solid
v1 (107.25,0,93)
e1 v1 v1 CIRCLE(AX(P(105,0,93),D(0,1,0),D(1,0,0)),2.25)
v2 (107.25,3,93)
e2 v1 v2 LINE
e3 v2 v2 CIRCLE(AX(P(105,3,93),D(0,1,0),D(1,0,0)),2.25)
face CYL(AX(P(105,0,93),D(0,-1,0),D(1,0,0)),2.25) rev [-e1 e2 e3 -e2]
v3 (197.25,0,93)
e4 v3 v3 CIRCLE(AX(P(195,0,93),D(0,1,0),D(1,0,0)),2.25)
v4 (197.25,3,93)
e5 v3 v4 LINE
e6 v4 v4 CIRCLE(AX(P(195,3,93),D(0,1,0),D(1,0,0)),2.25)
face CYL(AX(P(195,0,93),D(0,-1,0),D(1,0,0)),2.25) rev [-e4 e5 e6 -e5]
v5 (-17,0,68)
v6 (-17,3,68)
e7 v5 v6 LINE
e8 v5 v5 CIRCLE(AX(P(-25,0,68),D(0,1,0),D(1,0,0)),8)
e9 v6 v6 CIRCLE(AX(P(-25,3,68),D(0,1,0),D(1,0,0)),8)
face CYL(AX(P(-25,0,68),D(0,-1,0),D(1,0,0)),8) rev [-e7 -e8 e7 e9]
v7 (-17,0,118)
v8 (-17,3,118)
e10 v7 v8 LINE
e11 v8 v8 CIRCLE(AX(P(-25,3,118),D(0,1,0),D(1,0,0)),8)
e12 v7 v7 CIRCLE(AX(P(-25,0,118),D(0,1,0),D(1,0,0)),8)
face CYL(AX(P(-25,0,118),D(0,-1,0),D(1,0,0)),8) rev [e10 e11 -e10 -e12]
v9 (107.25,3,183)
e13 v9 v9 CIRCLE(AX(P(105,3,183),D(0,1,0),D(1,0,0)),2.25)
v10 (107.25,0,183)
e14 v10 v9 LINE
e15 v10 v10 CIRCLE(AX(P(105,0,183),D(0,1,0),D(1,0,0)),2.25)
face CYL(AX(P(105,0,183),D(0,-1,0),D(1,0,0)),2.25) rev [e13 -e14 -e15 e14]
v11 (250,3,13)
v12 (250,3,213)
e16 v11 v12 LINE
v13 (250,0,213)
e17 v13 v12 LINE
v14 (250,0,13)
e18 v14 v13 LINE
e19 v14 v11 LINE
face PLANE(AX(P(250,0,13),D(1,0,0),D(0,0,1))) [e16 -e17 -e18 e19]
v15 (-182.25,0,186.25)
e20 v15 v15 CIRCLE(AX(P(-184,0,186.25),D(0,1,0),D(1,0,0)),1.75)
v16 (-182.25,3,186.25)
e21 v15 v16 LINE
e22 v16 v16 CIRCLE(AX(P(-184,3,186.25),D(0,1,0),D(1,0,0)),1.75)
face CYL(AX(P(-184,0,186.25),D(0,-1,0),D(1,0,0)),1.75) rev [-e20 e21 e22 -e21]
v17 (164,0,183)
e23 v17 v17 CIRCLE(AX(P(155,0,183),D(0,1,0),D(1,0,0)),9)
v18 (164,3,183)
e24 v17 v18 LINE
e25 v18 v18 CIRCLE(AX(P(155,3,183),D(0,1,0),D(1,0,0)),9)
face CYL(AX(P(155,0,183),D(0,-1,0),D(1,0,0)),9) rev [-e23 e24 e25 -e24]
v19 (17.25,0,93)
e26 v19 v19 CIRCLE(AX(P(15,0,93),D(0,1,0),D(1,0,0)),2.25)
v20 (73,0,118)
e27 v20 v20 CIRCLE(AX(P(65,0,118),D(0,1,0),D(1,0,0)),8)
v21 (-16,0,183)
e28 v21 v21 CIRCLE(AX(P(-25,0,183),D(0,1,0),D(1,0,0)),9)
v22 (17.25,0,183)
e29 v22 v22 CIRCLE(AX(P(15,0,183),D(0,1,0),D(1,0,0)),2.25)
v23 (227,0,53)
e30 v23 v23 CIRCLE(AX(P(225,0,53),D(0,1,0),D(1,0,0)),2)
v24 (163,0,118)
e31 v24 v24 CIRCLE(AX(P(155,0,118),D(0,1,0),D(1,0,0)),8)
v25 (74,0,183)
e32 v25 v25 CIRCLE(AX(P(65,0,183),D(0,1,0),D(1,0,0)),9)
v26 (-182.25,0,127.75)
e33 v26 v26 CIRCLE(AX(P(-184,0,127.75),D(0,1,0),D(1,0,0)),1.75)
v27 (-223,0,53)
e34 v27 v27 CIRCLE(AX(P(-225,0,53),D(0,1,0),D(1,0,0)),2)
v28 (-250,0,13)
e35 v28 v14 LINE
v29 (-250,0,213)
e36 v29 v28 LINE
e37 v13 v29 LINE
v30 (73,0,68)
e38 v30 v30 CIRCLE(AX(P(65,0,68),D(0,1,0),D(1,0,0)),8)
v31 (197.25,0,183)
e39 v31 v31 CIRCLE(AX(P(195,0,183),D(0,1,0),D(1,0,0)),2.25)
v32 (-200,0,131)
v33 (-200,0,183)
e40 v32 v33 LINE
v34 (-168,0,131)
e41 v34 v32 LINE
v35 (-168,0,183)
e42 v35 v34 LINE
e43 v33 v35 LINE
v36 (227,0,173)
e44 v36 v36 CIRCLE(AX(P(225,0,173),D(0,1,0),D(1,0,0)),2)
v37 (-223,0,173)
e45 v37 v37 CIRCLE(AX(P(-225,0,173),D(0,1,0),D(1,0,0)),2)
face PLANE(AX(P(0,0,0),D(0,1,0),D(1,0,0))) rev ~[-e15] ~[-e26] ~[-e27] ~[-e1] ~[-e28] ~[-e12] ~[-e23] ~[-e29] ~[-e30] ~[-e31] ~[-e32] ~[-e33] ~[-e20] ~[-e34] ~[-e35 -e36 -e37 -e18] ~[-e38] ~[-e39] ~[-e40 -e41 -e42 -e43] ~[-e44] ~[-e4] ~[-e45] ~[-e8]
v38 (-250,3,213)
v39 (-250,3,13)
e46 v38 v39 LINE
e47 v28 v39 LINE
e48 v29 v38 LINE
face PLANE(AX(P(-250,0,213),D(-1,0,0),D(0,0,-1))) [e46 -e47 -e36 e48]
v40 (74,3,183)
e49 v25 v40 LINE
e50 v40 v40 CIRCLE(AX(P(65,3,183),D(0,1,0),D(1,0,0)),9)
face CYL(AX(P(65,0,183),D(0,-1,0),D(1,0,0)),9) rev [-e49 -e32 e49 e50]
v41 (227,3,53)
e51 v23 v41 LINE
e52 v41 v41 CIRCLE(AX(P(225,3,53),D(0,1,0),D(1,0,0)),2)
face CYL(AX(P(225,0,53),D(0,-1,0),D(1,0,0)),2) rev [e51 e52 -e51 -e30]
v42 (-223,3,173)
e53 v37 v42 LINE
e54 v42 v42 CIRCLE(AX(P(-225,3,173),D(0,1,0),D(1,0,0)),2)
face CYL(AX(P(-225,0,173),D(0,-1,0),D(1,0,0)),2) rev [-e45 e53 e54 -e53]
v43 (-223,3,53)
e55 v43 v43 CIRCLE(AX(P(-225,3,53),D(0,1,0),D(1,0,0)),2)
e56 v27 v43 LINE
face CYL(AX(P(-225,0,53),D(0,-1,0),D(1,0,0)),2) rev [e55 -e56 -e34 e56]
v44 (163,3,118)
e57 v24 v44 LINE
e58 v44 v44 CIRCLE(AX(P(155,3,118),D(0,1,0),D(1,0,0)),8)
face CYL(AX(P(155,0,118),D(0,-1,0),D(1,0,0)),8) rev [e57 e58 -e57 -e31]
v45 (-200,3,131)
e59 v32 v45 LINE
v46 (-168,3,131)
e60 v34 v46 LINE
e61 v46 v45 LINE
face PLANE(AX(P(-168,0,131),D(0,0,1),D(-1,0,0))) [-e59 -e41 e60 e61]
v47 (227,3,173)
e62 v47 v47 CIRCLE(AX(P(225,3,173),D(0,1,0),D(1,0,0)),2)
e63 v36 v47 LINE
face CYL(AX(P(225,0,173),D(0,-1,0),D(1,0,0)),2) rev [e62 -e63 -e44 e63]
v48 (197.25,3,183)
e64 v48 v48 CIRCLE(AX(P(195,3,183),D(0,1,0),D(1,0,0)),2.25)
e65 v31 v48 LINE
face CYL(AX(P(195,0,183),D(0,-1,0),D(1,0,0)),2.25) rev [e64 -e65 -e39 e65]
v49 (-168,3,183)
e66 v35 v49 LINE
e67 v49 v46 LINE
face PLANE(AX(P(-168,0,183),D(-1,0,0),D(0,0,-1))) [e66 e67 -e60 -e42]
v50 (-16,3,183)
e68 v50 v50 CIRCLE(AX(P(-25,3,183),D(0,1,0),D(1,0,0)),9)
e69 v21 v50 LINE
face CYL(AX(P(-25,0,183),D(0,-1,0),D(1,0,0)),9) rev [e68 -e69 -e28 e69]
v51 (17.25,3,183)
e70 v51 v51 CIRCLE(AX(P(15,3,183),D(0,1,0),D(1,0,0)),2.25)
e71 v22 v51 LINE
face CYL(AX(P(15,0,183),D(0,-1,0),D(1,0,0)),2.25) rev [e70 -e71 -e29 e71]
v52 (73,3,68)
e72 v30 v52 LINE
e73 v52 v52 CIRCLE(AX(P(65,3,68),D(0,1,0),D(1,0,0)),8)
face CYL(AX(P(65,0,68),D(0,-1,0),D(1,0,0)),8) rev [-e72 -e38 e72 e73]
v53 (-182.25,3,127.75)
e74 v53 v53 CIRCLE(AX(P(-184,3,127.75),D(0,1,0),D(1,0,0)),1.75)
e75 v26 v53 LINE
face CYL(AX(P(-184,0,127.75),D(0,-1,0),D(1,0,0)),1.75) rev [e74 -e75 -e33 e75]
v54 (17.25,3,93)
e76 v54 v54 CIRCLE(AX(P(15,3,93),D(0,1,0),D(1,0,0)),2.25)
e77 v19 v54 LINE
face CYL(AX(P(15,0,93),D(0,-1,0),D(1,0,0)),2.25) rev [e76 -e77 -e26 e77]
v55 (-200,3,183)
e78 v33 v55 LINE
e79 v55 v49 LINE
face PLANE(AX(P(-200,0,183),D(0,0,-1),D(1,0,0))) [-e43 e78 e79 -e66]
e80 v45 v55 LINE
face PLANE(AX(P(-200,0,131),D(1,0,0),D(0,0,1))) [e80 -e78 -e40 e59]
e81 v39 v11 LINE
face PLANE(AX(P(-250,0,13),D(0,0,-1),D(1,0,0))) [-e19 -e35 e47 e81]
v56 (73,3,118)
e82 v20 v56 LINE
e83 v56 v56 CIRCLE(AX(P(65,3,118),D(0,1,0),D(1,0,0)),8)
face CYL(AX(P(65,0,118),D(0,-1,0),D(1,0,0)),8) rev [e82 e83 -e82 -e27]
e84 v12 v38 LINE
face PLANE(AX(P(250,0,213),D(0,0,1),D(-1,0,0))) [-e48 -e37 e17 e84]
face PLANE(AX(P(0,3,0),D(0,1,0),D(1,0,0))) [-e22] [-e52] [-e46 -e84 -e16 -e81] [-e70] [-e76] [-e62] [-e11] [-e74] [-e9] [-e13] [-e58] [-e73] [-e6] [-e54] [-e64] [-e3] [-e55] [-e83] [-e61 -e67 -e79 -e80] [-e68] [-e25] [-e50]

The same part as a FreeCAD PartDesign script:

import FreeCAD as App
import Part
import Sketcher
Q = App.Units.Quantity

doc = App.newDocument("Part")
params = doc.addObject("Spreadsheet::Sheet", "Params")
for row, (alias, value) in enumerate([
    ("sketch1_diameter", "4 mm"),
    ("sketch1_diameter2", "18 mm"),
    ("sketch1_diameter3", "16 mm"),
    ("sketch1_diameter4", "3.5 mm"),
    ("sketch1_diameter5", "4.5 mm"),
    ("pad1_length", "3 mm"),
], start=1):
    params.set(f"A{row}", alias)
    params.set(f"B{row}", "=" + value)
    params.setAlias(f"B{row}", alias)

body = doc.addObject("PartDesign::Body", "Body")

sketch1 = body.newObject("Sketcher::SketchObject", "Sketch")
sketch1.AttachmentSupport = (doc.getObject("XZ_Plane"), [""])
sketch1.MapMode = "FlatFace"
sketch1.addGeometry([
    Part.LineSegment(App.Vector(250, 13, 0), App.Vector(-250, 13, 0)),
    Part.LineSegment(App.Vector(-250, 13, 0), App.Vector(-250, 213, 0)),
    Part.LineSegment(App.Vector(-250, 213, 0), App.Vector(250, 213, 0)),
    Part.LineSegment(App.Vector(250, 213, 0), App.Vector(250, 13, 0)),
    Part.Circle(App.Vector(-225, 173, 0), App.Vector(0, 0, 1), 2),
    Part.Circle(App.Vector(-184, 186.2, 0), App.Vector(0, 0, 1), 1.8),
    Part.Circle(App.Vector(-25, 183, 0), App.Vector(0, 0, 1), 9),
    Part.LineSegment(App.Vector(-168, 183, 0), App.Vector(-200, 183, 0)),
    Part.LineSegment(App.Vector(-200, 183, 0), App.Vector(-200, 131, 0)),
    Part.LineSegment(App.Vector(-200, 131, 0), App.Vector(-168, 131, 0)),
    Part.LineSegment(App.Vector(-168, 131, 0), App.Vector(-168, 183, 0)),
    Part.Circle(App.Vector(-184, 127.8, 0), App.Vector(0, 0, 1), 1.8),
    Part.Circle(App.Vector(-25, 118, 0), App.Vector(0, 0, 1), 8),
    Part.Circle(App.Vector(15, 183, 0), App.Vector(0, 0, 1), 2.2),
    Part.Circle(App.Vector(65, 183, 0), App.Vector(0, 0, 1), 9),
    Part.Circle(App.Vector(105, 183, 0), App.Vector(0, 0, 1), 2.2),
    Part.Circle(App.Vector(155, 183, 0), App.Vector(0, 0, 1), 9),
    Part.Circle(App.Vector(195, 183, 0), App.Vector(0, 0, 1), 2.2),
    Part.Circle(App.Vector(225, 173, 0), App.Vector(0, 0, 1), 2),
    Part.Circle(App.Vector(65, 118, 0), App.Vector(0, 0, 1), 8),
    Part.Circle(App.Vector(155, 118, 0), App.Vector(0, 0, 1), 8),
    Part.Circle(App.Vector(-25, 68, 0), App.Vector(0, 0, 1), 8),
    Part.Circle(App.Vector(-225, 53, 0), App.Vector(0, 0, 1), 2),
    Part.Circle(App.Vector(15, 93, 0), App.Vector(0, 0, 1), 2.2),
    Part.Circle(App.Vector(105, 93, 0), App.Vector(0, 0, 1), 2.2),
    Part.Circle(App.Vector(65, 68, 0), App.Vector(0, 0, 1), 8),
    Part.Circle(App.Vector(195, 93, 0), App.Vector(0, 0, 1), 2.2),
    Part.Circle(App.Vector(225, 53, 0), App.Vector(0, 0, 1), 2),
], False)
sketch1.addConstraint([
    Sketcher.Constraint("Coincident", 0, 2, 1, 1),
    Sketcher.Constraint("Coincident", 1, 2, 2, 1),
    Sketcher.Constraint("Coincident", 2, 2, 3, 1),
    Sketcher.Constraint("Coincident", 3, 2, 0, 1),
    Sketcher.Constraint("Coincident", 7, 2, 8, 1),
    Sketcher.Constraint("Coincident", 8, 2, 9, 1),
    Sketcher.Constraint("Coincident", 9, 2, 10, 1),
    Sketcher.Constraint("Coincident", 10, 2, 7, 1),
    Sketcher.Constraint("Horizontal", 0),
    Sketcher.Constraint("Vertical", 1),
    Sketcher.Constraint("Horizontal", 2),
    Sketcher.Constraint("Vertical", 3),
    Sketcher.Constraint("Horizontal", 7),
    Sketcher.Constraint("Vertical", 8),
    Sketcher.Constraint("Horizontal", 9),
    Sketcher.Constraint("Vertical", 10),
    Sketcher.Constraint("Equal", 5, 11),
    Sketcher.Constraint("Equal", 6, 14),
    Sketcher.Constraint("Equal", 13, 15),
    Sketcher.Constraint("Equal", 14, 16),
    Sketcher.Constraint("Equal", 15, 17),
    Sketcher.Constraint("Equal", 4, 18),
    Sketcher.Constraint("Equal", 12, 19),
    Sketcher.Constraint("Equal", 19, 20),
    Sketcher.Constraint("Equal", 20, 21),
    Sketcher.Constraint("Equal", 18, 22),
    Sketcher.Constraint("Equal", 17, 23),
    Sketcher.Constraint("Equal", 23, 24),
    Sketcher.Constraint("Equal", 21, 25),
    Sketcher.Constraint("Equal", 24, 26),
    Sketcher.Constraint("Equal", 22, 27),
    Sketcher.Constraint("Symmetric", 4, 3, 18, 3, -2),
    Sketcher.Constraint("Symmetric", 22, 3, 27, 3, -2),
    Sketcher.Constraint("Horizontal", 6, 3, 13, 3),
    Sketcher.Constraint("Horizontal", 13, 3, 14, 3),
    Sketcher.Constraint("Horizontal", 14, 3, 15, 3),
    Sketcher.Constraint("Horizontal", 15, 3, 16, 3),
    Sketcher.Constraint("Horizontal", 16, 3, 17, 3),
    Sketcher.Constraint("Horizontal", 12, 3, 19, 3),
    Sketcher.Constraint("Horizontal", 19, 3, 20, 3),
    Sketcher.Constraint("Horizontal", 23, 3, 24, 3),
    Sketcher.Constraint("Horizontal", 21, 3, 25, 3),
    Sketcher.Constraint("Horizontal", 24, 3, 26, 3),
    Sketcher.Constraint("Horizontal", 17, 3, 7, 2),
    Sketcher.Constraint("Vertical", 5, 3, 11, 3),
    Sketcher.Constraint("Vertical", 6, 3, 12, 3),
    Sketcher.Constraint("Vertical", 14, 3, 19, 3),
    Sketcher.Constraint("Vertical", 16, 3, 20, 3),
    Sketcher.Constraint("Vertical", 12, 3, 21, 3),
    Sketcher.Constraint("Vertical", 4, 3, 22, 3),
    Sketcher.Constraint("Vertical", 13, 3, 23, 3),
    Sketcher.Constraint("Vertical", 15, 3, 24, 3),
    Sketcher.Constraint("Vertical", 19, 3, 25, 3),
    Sketcher.Constraint("Vertical", 17, 3, 26, 3),
    Sketcher.Constraint("Diameter", 4, Q("4 mm")),
    Sketcher.Constraint("Diameter", 6, Q("18 mm")),
    Sketcher.Constraint("Diameter", 12, Q("16 mm")),
    Sketcher.Constraint("Diameter", 5, Q("3.5 mm")),
    Sketcher.Constraint("Diameter", 13, Q("4.5 mm")),
    Sketcher.Constraint("DistanceX", 0, 2, 0, 1, Q("500 mm")),
    Sketcher.Constraint("DistanceX", 7, 2, 7, 1, Q("32 mm")),
    Sketcher.Constraint("DistanceY", 1, 1, 1, 2, Q("200 mm")),
    Sketcher.Constraint("DistanceY", 8, 2, 8, 1, Q("52 mm")),
    Sketcher.Constraint("DistanceX", 6, 3, -1, 1, Q("25 mm")),
    Sketcher.Constraint("DistanceX", 0, 2, -1, 1, Q("250 mm")),
    Sketcher.Constraint("DistanceY", -1, 1, 0, 2, Q("13 mm")),
    Sketcher.Constraint("DistanceX", 7, 2, -1, 1, Q("200 mm")),
    Sketcher.Constraint("DistanceX", 4, 3, 6, 3, Q("200 mm")),
    Sketcher.Constraint("DistanceY", 12, 3, 4, 3, Q("55 mm")),
    Sketcher.Constraint("DistanceX", 6, 3, 13, 3, Q("40 mm")),
    Sketcher.Constraint("DistanceX", 13, 3, 14, 3, Q("50 mm")),
    Sketcher.Constraint("DistanceX", 14, 3, 15, 3, Q("40 mm")),
    Sketcher.Constraint("DistanceX", 15, 3, 16, 3, Q("50 mm")),
    Sketcher.Constraint("DistanceX", 16, 3, 17, 3, Q("40 mm")),
    Sketcher.Constraint("DistanceY", 21, 3, 12, 3, Q("50 mm")),
    Sketcher.Constraint("DistanceY", 23, 3, 12, 3, Q("25 mm")),
    Sketcher.Constraint("DistanceY", 23, 3, 13, 3, Q("90 mm")),
    Sketcher.Constraint("DistanceY", 27, 3, 26, 3, Q("40 mm")),
    Sketcher.Constraint("DistanceY", 0, 2, 22, 3, Q("40 mm")),
    Sketcher.Constraint("DistanceX", 7, 2, 5, 3, Q("16 mm")),
    Sketcher.Constraint("DistanceY", 11, 3, 5, 3, Q("58.5 mm")),
    Sketcher.Constraint("DistanceY", -1, 1, 5, 3, Q("186.25 mm")),
])
sketch1.setExpression("Constraints[54]", "Params.sketch1_diameter")
sketch1.setExpression("Constraints[55]", "Params.sketch1_diameter2")
sketch1.setExpression("Constraints[56]", "Params.sketch1_diameter3")
sketch1.setExpression("Constraints[57]", "Params.sketch1_diameter4")
sketch1.setExpression("Constraints[58]", "Params.sketch1_diameter5")
pad1 = body.newObject("PartDesign::Pad", "Pad")
pad1.Profile = sketch1
pad1.setExpression("Length", "Params.pad1_length")
pad1.Reversed = True

doc.recompute()
